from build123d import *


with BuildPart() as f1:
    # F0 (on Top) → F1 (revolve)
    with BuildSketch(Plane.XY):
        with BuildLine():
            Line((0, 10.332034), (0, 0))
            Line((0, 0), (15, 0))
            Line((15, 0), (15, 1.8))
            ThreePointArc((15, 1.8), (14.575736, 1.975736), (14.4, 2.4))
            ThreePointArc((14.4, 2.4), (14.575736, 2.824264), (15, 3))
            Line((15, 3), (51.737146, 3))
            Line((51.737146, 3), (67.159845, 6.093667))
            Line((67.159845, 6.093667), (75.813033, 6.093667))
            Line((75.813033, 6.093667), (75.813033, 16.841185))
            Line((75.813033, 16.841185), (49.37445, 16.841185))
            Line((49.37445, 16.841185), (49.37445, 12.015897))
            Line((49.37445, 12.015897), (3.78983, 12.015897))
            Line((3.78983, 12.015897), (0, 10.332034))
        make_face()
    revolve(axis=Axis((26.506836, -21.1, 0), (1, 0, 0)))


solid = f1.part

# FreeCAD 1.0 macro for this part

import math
import FreeCAD as App
import Part
import Sketcher

V = App.Vector

doc = App.newDocument("Part")
params = doc.addObject("Spreadsheet::Sheet", "Params")
for row, (alias, value) in enumerate([
    ("sketch1_radius", "0.6 mm"),
    ("sketch1_width", "15 mm"),
    ("sketch1_height", "1.8 mm"),
    ("revolution_angle", "360 deg"),
], start=1):
    params.set(f"A{row}", alias)
    params.set(f"B{row}", "=" + value)
    params.setAlias(f"B{row}", alias)

body = doc.addObject("PartDesign::Body", "Body")

# Sketch on XY plane
sketch1 = body.newObject("Sketcher::SketchObject", "Sketch")
sketch1.AttachmentSupport = (doc.getObject("XY_Plane"), [""])
sketch1.MapMode = "FlatFace"
sketch1.addGeometry([
    Part.LineSegment(V(0, 10.332034, 0), V(0, 0, 0)),  # 0
    Part.LineSegment(V(0, 0, 0), V(15, 0, 0)),  # 1
    Part.LineSegment(V(15, 0, 0), V(15, 1.8, 0)),  # 2
    Part.ArcOfCircle(Part.Circle(V(15, 2.4, 0), V(0, 0, 1), 0.6), math.radians(-179.999978), math.radians(-90.000022)),  # 3
    Part.ArcOfCircle(Part.Circle(V(15, 2.4, 0), V(0, 0, 1), 0.6), math.radians(90.000022), math.radians(179.999978)),  # 4
    Part.LineSegment(V(15, 3, 0), V(51.737146, 3, 0)),  # 5
    Part.LineSegment(V(51.737146, 3, 0), V(67.159845, 6.093667, 0)),  # 6
    Part.LineSegment(V(67.159845, 6.093667, 0), V(75.813033, 6.093667, 0)),  # 7
    Part.LineSegment(V(75.813033, 6.093667, 0), V(75.813033, 16.841185, 0)),  # 8
    Part.LineSegment(V(75.813033, 16.841185, 0), V(49.37445, 16.841185, 0)),  # 9
    Part.LineSegment(V(49.37445, 16.841185, 0), V(49.37445, 12.015897, 0)),  # 10
    Part.LineSegment(V(49.37445, 12.015897, 0), V(3.78983, 12.015897, 0)),  # 11
    Part.LineSegment(V(3.78983, 12.015897, 0), V(0, 10.332034, 0)),  # 12
], False)
sketch1.addGeometry(Part.LineSegment(V(0, -21.1, 0), V(75.813033, -21.1, 0)), True)  # axis
sketch1.addConstraint([
    Sketcher.Constraint("Coincident", 0, 2, 1, 1),
    Sketcher.Constraint("Coincident", 1, 2, 2, 1),
    Sketcher.Constraint("Coincident", 2, 2, 3, 2),
    Sketcher.Constraint("Tangent", 3, 1, 4, 2),
    Sketcher.Constraint("Tangent", 4, 1, 5, 1),
    Sketcher.Constraint("Coincident", 5, 2, 6, 1),
    Sketcher.Constraint("Coincident", 6, 2, 7, 1),
    Sketcher.Constraint("Coincident", 7, 2, 8, 1),
    Sketcher.Constraint("Coincident", 8, 2, 9, 1),
    Sketcher.Constraint("Coincident", 9, 2, 10, 1),
    Sketcher.Constraint("Coincident", 10, 2, 11, 1),
    Sketcher.Constraint("Coincident", 11, 2, 12, 1),
    Sketcher.Constraint("Coincident", 12, 2, 0, 1),
    Sketcher.Constraint("Vertical", 0),
    Sketcher.Constraint("Horizontal", 1),
    Sketcher.Constraint("Vertical", 2),
    Sketcher.Constraint("Horizontal", 5),
    Sketcher.Constraint("Horizontal", 7),
    Sketcher.Constraint("Vertical", 8),
    Sketcher.Constraint("Horizontal", 9),
    Sketcher.Constraint("Vertical", 10),
    Sketcher.Constraint("Horizontal", 11),
    Sketcher.Constraint("Horizontal", 13),
    Sketcher.Constraint("Coincident", 0, 2, -1, 1),
    Sketcher.Constraint("Equal", 3, 4),
    Sketcher.Constraint("PointOnObject", 13, 1, -2),
    Sketcher.Constraint("Horizontal", 4, 3, 3, 1),
    Sketcher.Constraint("Vertical", 4, 3, 1, 2),
    Sketcher.Constraint("Vertical", 8, 2, 13, 2),
    Sketcher.Constraint("Radius", 3, 0.6),
    Sketcher.Constraint("DistanceX", 1, 1, 1, 2, 15.0),
    Sketcher.Constraint("DistanceY", 2, 1, 2, 2, 1.8),
    Sketcher.Constraint("DistanceY", 13, 1, -1, 1, 21.1),
    Sketcher.Constraint("DistanceX", 11, 2, 11, 1, 45.58462),
    Sketcher.Constraint("DistanceX", 5, 2, 6, 2, 15.422699),
    Sketcher.Constraint("Distance", 6, 15.729921),
    Sketcher.Constraint("Distance", 12, 4.147072),
    Sketcher.Constraint("DistanceX", 5, 1, 5, 2, 36.737146),
    Sketcher.Constraint("DistanceX", 7, 1, 7, 2, 8.653188),
    Sketcher.Constraint("DistanceX", 9, 2, 9, 1, 26.438583),
    Sketcher.Constraint("DistanceY", 0, 2, 0, 1, 10.332034),
    Sketcher.Constraint("DistanceY", 8, 1, 8, 2, 10.747518),
])
sketch1.setExpression("Constraints[29]", "Params.sketch1_radius")
sketch1.setExpression("Constraints[30]", "Params.sketch1_width")
sketch1.setExpression("Constraints[31]", "Params.sketch1_height")
revolution = body.newObject("PartDesign::Revolution", "Revolution")
revolution.Profile = sketch1
revolution.ReferenceAxis = (sketch1, ["Axis0"])
revolution.setExpression("Angle", "Params.revolution_angle")

doc.recompute()
